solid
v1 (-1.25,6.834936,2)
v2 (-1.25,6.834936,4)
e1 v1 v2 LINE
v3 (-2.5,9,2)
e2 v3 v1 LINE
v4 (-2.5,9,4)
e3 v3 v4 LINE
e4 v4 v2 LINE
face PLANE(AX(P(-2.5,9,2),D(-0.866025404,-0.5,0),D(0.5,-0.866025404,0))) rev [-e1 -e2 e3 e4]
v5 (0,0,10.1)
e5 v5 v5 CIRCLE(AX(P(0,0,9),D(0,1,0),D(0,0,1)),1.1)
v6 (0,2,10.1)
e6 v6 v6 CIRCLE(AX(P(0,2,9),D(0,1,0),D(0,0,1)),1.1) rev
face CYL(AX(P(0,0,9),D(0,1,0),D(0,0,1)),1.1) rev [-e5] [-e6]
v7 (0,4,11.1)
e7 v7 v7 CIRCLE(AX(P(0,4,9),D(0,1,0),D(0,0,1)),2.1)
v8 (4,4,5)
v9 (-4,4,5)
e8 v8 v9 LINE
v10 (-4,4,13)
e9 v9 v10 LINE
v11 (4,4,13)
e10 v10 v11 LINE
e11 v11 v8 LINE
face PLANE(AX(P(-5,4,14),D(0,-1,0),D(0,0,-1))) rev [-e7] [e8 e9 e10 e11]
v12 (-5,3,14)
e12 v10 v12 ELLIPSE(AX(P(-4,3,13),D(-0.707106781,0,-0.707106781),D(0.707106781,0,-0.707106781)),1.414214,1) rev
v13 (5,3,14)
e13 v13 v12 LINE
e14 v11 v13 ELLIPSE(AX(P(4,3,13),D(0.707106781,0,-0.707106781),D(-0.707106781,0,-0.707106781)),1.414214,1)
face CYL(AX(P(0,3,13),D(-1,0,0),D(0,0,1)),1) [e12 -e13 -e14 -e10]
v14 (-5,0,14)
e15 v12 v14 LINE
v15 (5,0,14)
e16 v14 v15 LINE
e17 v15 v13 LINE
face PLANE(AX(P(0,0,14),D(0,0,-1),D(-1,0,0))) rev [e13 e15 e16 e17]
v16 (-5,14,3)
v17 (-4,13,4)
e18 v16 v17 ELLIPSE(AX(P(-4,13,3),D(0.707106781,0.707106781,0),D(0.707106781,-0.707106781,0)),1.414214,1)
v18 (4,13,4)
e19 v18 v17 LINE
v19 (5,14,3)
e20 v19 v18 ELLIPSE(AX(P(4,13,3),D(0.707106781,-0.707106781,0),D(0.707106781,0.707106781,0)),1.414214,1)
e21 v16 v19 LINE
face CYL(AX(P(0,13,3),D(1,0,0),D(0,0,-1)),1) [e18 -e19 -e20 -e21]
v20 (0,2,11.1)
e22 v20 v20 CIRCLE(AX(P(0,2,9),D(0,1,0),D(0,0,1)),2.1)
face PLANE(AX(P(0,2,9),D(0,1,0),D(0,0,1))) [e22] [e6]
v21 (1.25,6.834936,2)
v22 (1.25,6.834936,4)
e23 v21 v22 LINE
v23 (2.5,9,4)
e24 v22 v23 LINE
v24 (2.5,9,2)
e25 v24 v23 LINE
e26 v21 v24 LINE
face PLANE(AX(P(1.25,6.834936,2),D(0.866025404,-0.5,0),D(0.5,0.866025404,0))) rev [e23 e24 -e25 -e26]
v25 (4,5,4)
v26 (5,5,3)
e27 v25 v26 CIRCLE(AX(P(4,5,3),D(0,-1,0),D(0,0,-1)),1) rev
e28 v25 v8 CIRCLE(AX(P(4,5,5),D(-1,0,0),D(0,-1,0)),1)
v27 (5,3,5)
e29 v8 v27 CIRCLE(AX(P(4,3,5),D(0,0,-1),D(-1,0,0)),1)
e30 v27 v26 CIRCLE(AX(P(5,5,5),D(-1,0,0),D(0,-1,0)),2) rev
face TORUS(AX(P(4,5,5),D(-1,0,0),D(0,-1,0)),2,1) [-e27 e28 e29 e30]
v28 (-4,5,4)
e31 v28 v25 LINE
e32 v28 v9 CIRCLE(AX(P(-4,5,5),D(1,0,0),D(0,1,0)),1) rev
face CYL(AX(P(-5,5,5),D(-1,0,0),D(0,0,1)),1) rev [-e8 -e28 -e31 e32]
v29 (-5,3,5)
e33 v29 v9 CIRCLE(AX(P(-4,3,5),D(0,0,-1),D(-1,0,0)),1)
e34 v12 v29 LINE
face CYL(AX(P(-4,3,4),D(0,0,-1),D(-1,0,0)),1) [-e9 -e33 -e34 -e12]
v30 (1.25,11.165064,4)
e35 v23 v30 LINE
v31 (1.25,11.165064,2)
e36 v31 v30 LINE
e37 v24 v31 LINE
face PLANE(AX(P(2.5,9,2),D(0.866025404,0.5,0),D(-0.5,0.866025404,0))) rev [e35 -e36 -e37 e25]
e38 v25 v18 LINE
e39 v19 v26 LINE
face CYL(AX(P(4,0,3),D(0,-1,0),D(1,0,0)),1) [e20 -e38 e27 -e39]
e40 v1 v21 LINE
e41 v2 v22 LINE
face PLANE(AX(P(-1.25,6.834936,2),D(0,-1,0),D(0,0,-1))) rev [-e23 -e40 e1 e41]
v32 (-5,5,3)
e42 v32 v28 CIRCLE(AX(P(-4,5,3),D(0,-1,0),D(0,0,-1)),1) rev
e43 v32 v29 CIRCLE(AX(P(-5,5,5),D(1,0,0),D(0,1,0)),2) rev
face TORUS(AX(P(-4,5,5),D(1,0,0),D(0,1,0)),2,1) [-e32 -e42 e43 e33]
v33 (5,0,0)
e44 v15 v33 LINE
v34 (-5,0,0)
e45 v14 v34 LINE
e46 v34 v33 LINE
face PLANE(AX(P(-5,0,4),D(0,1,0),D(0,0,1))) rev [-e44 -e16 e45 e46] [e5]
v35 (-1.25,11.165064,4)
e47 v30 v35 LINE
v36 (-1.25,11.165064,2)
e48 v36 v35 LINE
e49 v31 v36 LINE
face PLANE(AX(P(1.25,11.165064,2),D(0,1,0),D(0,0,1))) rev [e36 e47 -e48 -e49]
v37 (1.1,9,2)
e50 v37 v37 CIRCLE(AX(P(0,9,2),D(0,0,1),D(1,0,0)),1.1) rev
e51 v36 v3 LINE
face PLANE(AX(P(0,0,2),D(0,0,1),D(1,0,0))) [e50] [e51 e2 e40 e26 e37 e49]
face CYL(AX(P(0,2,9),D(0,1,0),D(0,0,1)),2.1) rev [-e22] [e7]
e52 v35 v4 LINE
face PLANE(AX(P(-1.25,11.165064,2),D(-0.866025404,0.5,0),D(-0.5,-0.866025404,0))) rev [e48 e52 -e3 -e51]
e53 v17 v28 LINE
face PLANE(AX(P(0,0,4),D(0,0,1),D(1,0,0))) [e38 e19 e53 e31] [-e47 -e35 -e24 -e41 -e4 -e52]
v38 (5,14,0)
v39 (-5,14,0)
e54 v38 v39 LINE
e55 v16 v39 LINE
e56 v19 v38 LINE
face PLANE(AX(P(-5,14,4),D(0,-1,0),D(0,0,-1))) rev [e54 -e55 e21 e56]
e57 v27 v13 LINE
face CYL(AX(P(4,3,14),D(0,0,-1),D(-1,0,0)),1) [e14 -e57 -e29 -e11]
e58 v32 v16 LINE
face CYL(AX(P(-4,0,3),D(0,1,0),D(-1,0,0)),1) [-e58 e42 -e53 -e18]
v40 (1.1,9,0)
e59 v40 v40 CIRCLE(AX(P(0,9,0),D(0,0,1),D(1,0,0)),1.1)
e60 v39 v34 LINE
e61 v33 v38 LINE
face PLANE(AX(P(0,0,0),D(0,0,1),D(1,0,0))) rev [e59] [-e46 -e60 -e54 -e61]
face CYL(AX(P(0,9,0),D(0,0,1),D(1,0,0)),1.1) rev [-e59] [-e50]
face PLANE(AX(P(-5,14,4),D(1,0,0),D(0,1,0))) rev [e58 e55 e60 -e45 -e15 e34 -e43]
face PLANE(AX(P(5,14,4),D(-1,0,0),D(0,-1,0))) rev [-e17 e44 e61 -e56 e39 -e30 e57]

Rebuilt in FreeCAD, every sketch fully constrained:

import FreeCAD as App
import Part
import Sketcher
from FreeCAD import Vector
Q = App.Units.Quantity


def edges_at(feature, points):
    """Names of the edges that pass closest to the given points."""
    edges = feature.Shape.Edges
    near = lambda p: min(range(len(edges)), key=lambda i: edges[i].distToShape(Part.Vertex(*p))[0])
    return sorted({f"Edge{near(p) + 1}" for p in points})

doc = App.newDocument("Part")
body = doc.addObject("PartDesign::Body", "Body")

# Sketch on XY plane
sketch1 = body.newObject("Sketcher::SketchObject", "Sketch")
sketch1.AttachmentSupport = (doc.getObject("XY_Plane"), [""])
sketch1.MapMode = "FlatFace"
sketch1.addGeometry(Part.LineSegment(Vector(-5, 14, 0), Vector(-5, 0, 0)), False)
sketch1.addGeometry(Part.LineSegment(Vector(-5, 0, 0), Vector(5, 0, 0)), False)
sketch1.addGeometry(Part.LineSegment(Vector(5, 0, 0), Vector(5, 14, 0)), False)
sketch1.addGeometry(Part.LineSegment(Vector(5, 14, 0), Vector(-5, 14, 0)), False)
sketch1.addConstraint(Sketcher.Constraint("Coincident", 0, 2, 1, 1))
sketch1.addConstraint(Sketcher.Constraint("Coincident", 1, 2, 2, 1))
sketch1.addConstraint(Sketcher.Constraint("Coincident", 2, 2, 3, 1))
sketch1.addConstraint(Sketcher.Constraint("Coincident", 3, 2, 0, 1))
sketch1.addConstraint(Sketcher.Constraint("Vertical", 0))
sketch1.addConstraint(Sketcher.Constraint("Horizontal", 1))
sketch1.addConstraint(Sketcher.Constraint("Vertical", 2))
sketch1.addConstraint(Sketcher.Constraint("Horizontal", 3))
sketch1.addConstraint(Sketcher.Constraint("Symmetric", 0, 2, 1, 2, -1, 1))
sketch1.addConstraint(Sketcher.Constraint("DistanceX", 1, 1, 1, 2, 10.0))
sketch1.addConstraint(Sketcher.Constraint("DistanceY", 0, 2, 0, 1, 14.0))
pad1 = body.newObject("PartDesign::Pad", "Pad")
pad1.Profile = sketch1
pad1.Length = 4

# Sketch on XY plane
sketch2 = body.newObject("Sketcher::SketchObject", "Sketch001")
sketch2.AttachmentSupport = (doc.getObject("XY_Plane"), [""])
sketch2.MapMode = "FlatFace"
sketch2.AttachmentOffset = App.Placement(Vector(0, 0, 4), App.Rotation())
sketch2.addGeometry(Part.LineSegment(Vector(-5, 4, 0), Vector(-5, 0, 0)), False)
sketch2.addGeometry(Part.LineSegment(Vector(-5, 0, 0), Vector(5, 0, 0)), False)
sketch2.addGeometry(Part.LineSegment(Vector(5, 0, 0), Vector(5, 4, 0)), False)
sketch2.addGeometry(Part.LineSegment(Vector(5, 4, 0), Vector(-5, 4, 0)), False)
sketch2.addConstraint(Sketcher.Constraint("Coincident", 0, 2, 1, 1))
sketch2.addConstraint(Sketcher.Constraint("Coincident", 1, 2, 2, 1))
sketch2.addConstraint(Sketcher.Constraint("Coincident", 2, 2, 3, 1))
sketch2.addConstraint(Sketcher.Constraint("Coincident", 3, 2, 0, 1))
sketch2.addConstraint(Sketcher.Constraint("Vertical", 0))
sketch2.addConstraint(Sketcher.Constraint("Horizontal", 1))
sketch2.addConstraint(Sketcher.Constraint("Vertical", 2))
sketch2.addConstraint(Sketcher.Constraint("Horizontal", 3))
sketch2.addConstraint(Sketcher.Constraint("Symmetric", 0, 2, 1, 2, -1, 1))
sketch2.addConstraint(Sketcher.Constraint("DistanceX", 1, 1, 1, 2, 10.0))
sketch2.addConstraint(Sketcher.Constraint("DistanceY", 0, 2, 0, 1, 4.0))
pad2 = body.newObject("PartDesign::Pad", "Pad001")
pad2.Profile = sketch2
pad2.Length = 10

# Sketch on XY plane
sketch3 = body.newObject("Sketcher::SketchObject", "Sketch002")
sketch3.AttachmentSupport = (doc.getObject("XY_Plane"), [""])
sketch3.MapMode = "FlatFace"
sketch3.AttachmentOffset = App.Placement(Vector(0, 0, 4), App.Rotation())
sketch3.addGeometry(Part.Circle(Vector(0, 9, 0), Vector(0, 0, 1), 1.1), False)
sketch3.addConstraint(Sketcher.Constraint("PointOnObject", 0, 3, -2))
sketch3.addConstraint(Sketcher.Constraint("Diameter", 0, 2.2))
sketch3.addConstraint(Sketcher.Constraint("DistanceY", -1, 1, 0, 3, 9.0))
pocket1 = body.newObject("PartDesign::Pocket", "Pocket")
pocket1.Profile = sketch3
pocket1.Type = "ThroughAll"
doc.recompute()

fillet = body.newObject("PartDesign::Fillet", "Fillet")
fillet.Base = (pocket1, edges_at(pocket1, [
    (5, 9, 4),
    (-5, 4, 9),
    (0, 4, 4),
    (5, 4, 9),
    (0, 14, 4),
    (0, 4, 14),
    (-5, 9, 4),
]))
fillet.Radius = 1

# Sketch on XZ plane
sketch4 = body.newObject("Sketcher::SketchObject", "Sketch003")
sketch4.AttachmentSupport = (doc.getObject("XZ_Plane"), [""])
sketch4.MapMode = "FlatFace"
sketch4.AttachmentOffset = App.Placement(Vector(0, 0, -4), App.Rotation())
sketch4.addGeometry(Part.Circle(Vector(0, 9, 0), Vector(0, 0, 1), 1.1), False)
sketch4.addConstraint(Sketcher.Constraint("PointOnObject", 0, 3, -2))
sketch4.addConstraint(Sketcher.Constraint("Diameter", 0, 2.2))
sketch4.addConstraint(Sketcher.Constraint("DistanceY", -1, 1, 0, 3, 9.0))
pocket2 = body.newObject("PartDesign::Pocket", "Pocket001")
pocket2.Profile = sketch4
pocket2.Type = "ThroughAll"
pocket2.Reversed = True

# Sketch on XY plane
sketch5 = body.newObject("Sketcher::SketchObject", "Sketch004")
sketch5.AttachmentSupport = (doc.getObject("XY_Plane"), [""])
sketch5.MapMode = "FlatFace"
sketch5.AttachmentOffset = App.Placement(Vector(0, 0, 4), App.Rotation())
sketch5.addGeometry(Part.LineSegment(Vector(1.2, 6.8, 0), Vector(2.5, 9, 0)), False)
sketch5.addGeometry(Part.LineSegment(Vector(2.5, 9, 0), Vector(1.2, 11.2, 0)), False)
sketch5.addGeometry(Part.LineSegment(Vector(1.2, 11.2, 0), Vector(-1.2, 11.2, 0)), False)
sketch5.addGeometry(Part.LineSegment(Vector(-1.2, 11.2, 0), Vector(-2.5, 9, 0)), False)
sketch5.addGeometry(Part.LineSegment(Vector(-2.5, 9, 0), Vector(-1.2, 6.8, 0)), False)
sketch5.addGeometry(Part.LineSegment(Vector(-1.2, 6.8, 0), Vector(1.2, 6.8, 0)), False)
sketch5.addConstraint(Sketcher.Constraint("Coincident", 0, 2, 1, 1))
sketch5.addConstraint(Sketcher.Constraint("Coincident", 1, 2, 2, 1))
sketch5.addConstraint(Sketcher.Constraint("Coincident", 2, 2, 3, 1))
sketch5.addConstraint(Sketcher.Constraint("Coincident", 3, 2, 4, 1))
sketch5.addConstraint(Sketcher.Constraint("Coincident", 4, 2, 5, 1))
sketch5.addConstraint(Sketcher.Constraint("Coincident", 5, 2, 0, 1))
sketch5.addConstraint(Sketcher.Constraint("Horizontal", 2))
sketch5.addConstraint(Sketcher.Constraint("Horizontal", 5))
sketch5.addConstraint(Sketcher.Constraint("Symmetric", 0, 2, 3, 2, -2))
sketch5.addConstraint(Sketcher.Constraint("Parallel", 0, 3))
sketch5.addConstraint(Sketcher.Constraint("Parallel", 1, 4))
sketch5.addConstraint(Sketcher.Constraint("Vertical", 2, 2, 4, 2))
sketch5.addConstraint(Sketcher.Constraint("Vertical", 1, 2, 5, 2))
sketch5.addConstraint(Sketcher.Constraint("Angle", 0, Q("60 deg")))
sketch5.addConstraint(Sketcher.Constraint("DistanceX", 2, 2, 2, 1, 2.5))
sketch5.addConstraint(Sketcher.Constraint("DistanceY", -1, 1, 0, 2, 9.0))
sketch5.addConstraint(Sketcher.Constraint("DistanceX", 3, 2, 0, 2, 5.0))
pocket3 = body.newObject("PartDesign::Pocket", "Pocket002")
pocket3.Profile = sketch5
pocket3.Length = 2

# Sketch on XZ plane
sketch6 = body.newObject("Sketcher::SketchObject", "Sketch005")
sketch6.AttachmentSupport = (doc.getObject("XZ_Plane"), [""])
sketch6.MapMode = "FlatFace"
sketch6.AttachmentOffset = App.Placement(Vector(0, 0, -4), App.Rotation())
sketch6.addGeometry(Part.Circle(Vector(0, 9, 0), Vector(0, 0, 1), 2.1), False)
sketch6.addConstraint(Sketcher.Constraint("PointOnObject", 0, 3, -2))
sketch6.addConstraint(Sketcher.Constraint("Diameter", 0, 4.2))
sketch6.addConstraint(Sketcher.Constraint("DistanceY", -1, 1, 0, 3, 9.0))
pocket4 = body.newObject("PartDesign::Pocket", "Pocket003")
pocket4.Profile = sketch6
pocket4.Length = 2
pocket4.Reversed = True

doc.recompute()
